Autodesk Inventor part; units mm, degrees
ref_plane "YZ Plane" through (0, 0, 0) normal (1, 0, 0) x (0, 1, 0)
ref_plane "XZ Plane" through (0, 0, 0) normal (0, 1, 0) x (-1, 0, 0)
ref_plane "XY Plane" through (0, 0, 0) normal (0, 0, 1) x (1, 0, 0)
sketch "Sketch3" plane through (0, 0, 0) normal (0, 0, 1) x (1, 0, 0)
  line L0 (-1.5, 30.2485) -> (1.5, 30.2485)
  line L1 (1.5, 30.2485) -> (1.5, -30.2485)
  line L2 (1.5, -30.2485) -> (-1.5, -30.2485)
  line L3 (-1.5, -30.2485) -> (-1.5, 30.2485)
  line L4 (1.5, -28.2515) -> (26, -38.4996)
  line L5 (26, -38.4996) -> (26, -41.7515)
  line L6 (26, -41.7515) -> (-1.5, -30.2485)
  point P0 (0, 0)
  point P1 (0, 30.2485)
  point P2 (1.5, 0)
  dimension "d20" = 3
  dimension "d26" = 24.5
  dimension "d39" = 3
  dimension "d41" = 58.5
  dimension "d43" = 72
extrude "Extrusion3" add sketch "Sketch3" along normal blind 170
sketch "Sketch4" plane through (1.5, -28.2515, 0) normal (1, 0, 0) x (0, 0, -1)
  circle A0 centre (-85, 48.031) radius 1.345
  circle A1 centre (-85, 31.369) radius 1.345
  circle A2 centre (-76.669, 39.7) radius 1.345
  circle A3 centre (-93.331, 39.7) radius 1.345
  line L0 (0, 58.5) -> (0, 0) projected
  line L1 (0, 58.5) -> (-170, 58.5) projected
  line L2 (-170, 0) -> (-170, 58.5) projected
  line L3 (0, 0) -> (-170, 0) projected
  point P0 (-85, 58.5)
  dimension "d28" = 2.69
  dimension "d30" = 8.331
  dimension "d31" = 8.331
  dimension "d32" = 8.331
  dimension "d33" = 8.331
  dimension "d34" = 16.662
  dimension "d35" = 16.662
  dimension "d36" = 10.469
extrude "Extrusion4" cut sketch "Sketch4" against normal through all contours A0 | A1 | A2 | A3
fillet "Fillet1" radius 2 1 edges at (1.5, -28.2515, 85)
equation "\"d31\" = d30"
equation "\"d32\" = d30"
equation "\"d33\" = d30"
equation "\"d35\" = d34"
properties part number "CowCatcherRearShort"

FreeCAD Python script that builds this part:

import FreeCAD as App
import Part
import Sketcher
from FreeCAD import Vector
Q = App.Units.Quantity


def edges_at(feature, points):
    """Names of the edges that pass closest to the given points."""
    edges = feature.Shape.Edges
    near = lambda p: min(range(len(edges)), key=lambda i: edges[i].distToShape(Part.Vertex(*p))[0])
    return sorted({f"Edge{near(p) + 1}" for p in points})

doc = App.newDocument("Part")
body = doc.addObject("PartDesign::Body", "Body")

sketch1 = doc.addObject("Sketcher::SketchObject", "Sketch")
body.addObject(sketch1)
sketch1.AttachmentSupport = (doc.XY_Plane, [""])
sketch1.MapMode = "FlatFace"
sketch1.addGeometry([
    Part.LineSegment(Vector(1.5, 30.2, 0), Vector(-1.5, 30.2, 0)),
    Part.LineSegment(Vector(-1.5, 30.2, 0), Vector(-1.5, -30.2, 0)),
    Part.LineSegment(Vector(-1.5, -30.2, 0), Vector(26, -41.8, 0)),
    Part.LineSegment(Vector(26, -41.8, 0), Vector(26, -38.5, 0)),
    Part.LineSegment(Vector(26, -38.5, 0), Vector(1.5, -28.3, 0)),
    Part.LineSegment(Vector(1.5, -28.3, 0), Vector(1.5, 30.2, 0)),
], False)
sketch1.addConstraint([
    Sketcher.Constraint("Coincident", 0, 2, 1, 1),
    Sketcher.Constraint("Coincident", 1, 2, 2, 1),
    Sketcher.Constraint("Coincident", 2, 2, 3, 1),
    Sketcher.Constraint("Coincident", 3, 2, 4, 1),
    Sketcher.Constraint("Coincident", 4, 2, 5, 1),
    Sketcher.Constraint("Coincident", 5, 2, 0, 1),
    Sketcher.Constraint("Horizontal", 0),
    Sketcher.Constraint("Vertical", 1),
    Sketcher.Constraint("Vertical", 3),
    Sketcher.Constraint("Vertical", 5),
    Sketcher.Constraint("Symmetric", 1, 2, 5, 2, -1, 1),
    Sketcher.Constraint("Parallel", 2, 4),
    Sketcher.Constraint("DistanceX", 0, 2, 0, 1, 3.0),
    Sketcher.Constraint("DistanceY", 5, 1, 5, 2, 58.5),
    Sketcher.Constraint("DistanceY", 2, 2, 0, 2, 72.0),
    Sketcher.Constraint("DistanceX", 4, 2, 3, 2, 24.5),
    Sketcher.Constraint("Angle", 2, Q("-22.699 deg")),
])
pad1 = doc.addObject("PartDesign::Pad", "Pad")
body.addObject(pad1)
pad1.Profile = sketch1
pad1.Length = 170

sketch2 = doc.addObject("Sketcher::SketchObject", "Sketch001")
body.addObject(sketch2)
sketch2.AttachmentSupport = (doc.YZ_Plane, [""])
sketch2.MapMode = "FlatFace"
sketch2.AttachmentOffset = App.Placement(Vector(0, 0, 1.5), App.Rotation())
sketch2.addGeometry([
    Part.Circle(Vector(19.8, 85, 0), Vector(0, 0, 1), 1.3),
    Part.Circle(Vector(3.1, 85, 0), Vector(0, 0, 1), 1.3),
    Part.Circle(Vector(11.4, 76.7, 0), Vector(0, 0, 1), 1.3),
    Part.Circle(Vector(11.4, 93.3, 0), Vector(0, 0, 1), 1.3),
], False)
sketch2.addConstraint([
    Sketcher.Constraint("Equal", 0, 1),
    Sketcher.Constraint("Equal", 1, 2),
    Sketcher.Constraint("Equal", 2, 3),
    Sketcher.Constraint("Horizontal", 0, 3, 1, 3),
    Sketcher.Constraint("Vertical", 2, 3, 3, 3),
    Sketcher.Constraint("Diameter", 0, 2.69),
    Sketcher.Constraint("DistanceY", -1, 1, 0, 3, 85.0),
    Sketcher.Constraint("DistanceX", 1, 3, 0, 3, 16.662),
    Sketcher.Constraint("DistanceX", 2, 3, 0, 3, 8.331),
    Sketcher.Constraint("DistanceY", 2, 3, 0, 3, 8.331),
    Sketcher.Constraint("DistanceY", 0, 3, 3, 3, 8.331),
    Sketcher.Constraint("DistanceX", -1, 1, 0, 3, 19.7795),
])
pocket1 = doc.addObject("PartDesign::Pocket", "Pocket")
body.addObject(pocket1)
pocket1.Profile = sketch2
pocket1.Type = "ThroughAll"
doc.recompute()

fillet = doc.addObject("PartDesign::Fillet", "Fillet")
body.addObject(fillet)
fillet.Base = (pocket1, edges_at(pocket1, [(1.5, -28.252, 85)]))
fillet.Radius = 2

doc.recompute()
